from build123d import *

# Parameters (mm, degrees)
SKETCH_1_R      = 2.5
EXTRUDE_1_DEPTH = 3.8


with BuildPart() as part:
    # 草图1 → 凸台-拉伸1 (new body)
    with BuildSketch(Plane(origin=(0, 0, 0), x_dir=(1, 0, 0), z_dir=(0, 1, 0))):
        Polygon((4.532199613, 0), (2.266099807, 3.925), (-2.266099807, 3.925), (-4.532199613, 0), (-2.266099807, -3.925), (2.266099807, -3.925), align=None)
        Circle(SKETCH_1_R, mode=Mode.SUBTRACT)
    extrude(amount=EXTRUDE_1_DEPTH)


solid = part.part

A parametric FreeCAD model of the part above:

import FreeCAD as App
import Part
import Sketcher
Q = App.Units.Quantity


def add_polygon(sketch, points):
    """Adds a closed chain of lines whose ends are joined by coincident constraints."""
    first, n = sketch.GeometryCount, len(points)
    for a, b in zip(points, points[1:] + points[:1]):
        sketch.addGeometry(Part.LineSegment(App.Vector(*a, 0), App.Vector(*b, 0)), False)
    for i in range(n):
        sketch.addConstraint(Sketcher.Constraint("Coincident", first + i, 2, first + (i + 1) % n, 1))

doc = App.newDocument("Part")
params = doc.addObject("Spreadsheet::Sheet", "Params")
for row, (alias, value) in enumerate([
    ("sketch1_diameter", "5 mm"),
    ("pad1_length", "3.8 mm"),
], start=1):
    params.set(f"A{row}", alias)
    params.set(f"B{row}", "=" + value)
    params.setAlias(f"B{row}", alias)

body = doc.addObject("PartDesign::Body", "Body")

# Sketch on XZ plane
sketch1 = doc.addObject("Sketcher::SketchObject", "Sketch")
body.addObject(sketch1)
sketch1.AttachmentSupport = (doc.XZ_Plane, [""])
sketch1.MapMode = "FlatFace"
add_polygon(sketch1, [(4.5322, 0), (2.2661, -3.925), (-2.2661, -3.925), (-4.5322, 0), (-2.2661, 3.925), (2.2661, 3.925)])  # lines 0-5
sketch1.addGeometry(Part.Circle(App.Vector(0, 0, 0), App.Vector(0, 0, 1), 2.5), False)  # 6
sketch1.addConstraint(Sketcher.Constraint("Horizontal", 1))
sketch1.addConstraint(Sketcher.Constraint("Horizontal", 4))
sketch1.addConstraint(Sketcher.Constraint("Coincident", 6, 3, -1, 1))
sketch1.addConstraint(Sketcher.Constraint("Symmetric", 0, 2, 3, 2, -1, 1))
sketch1.addConstraint(Sketcher.Constraint("Symmetric", 2, 2, 5, 2, -1, 1))
sketch1.addConstraint(Sketcher.Constraint("PointOnObject", 2, 2, -1))
sketch1.addConstraint(Sketcher.Constraint("Parallel", 2, 5))
sketch1.addConstraint(Sketcher.Constraint("Vertical", 1, 2, 3, 2))
sketch1.addConstraint(Sketcher.Constraint("Diameter", 6, 5.0))
sketch1.addConstraint(Sketcher.Constraint("Angle", 0, Q("-120 deg")))
sketch1.addConstraint(Sketcher.Constraint("DistanceY", 1, 2, 3, 2, 7.85))
sketch1.addConstraint(Sketcher.Constraint("DistanceX", 1, 2, 1, 1, 4.5322))
sketch1.setExpression("Constraints[14]", "Params.sketch1_diameter")
pad1 = doc.addObject("PartDesign::Pad", "Pad")
body.addObject(pad1)
pad1.Profile = sketch1
pad1.setExpression("Length", "Params.pad1_length")
pad1.Reversed = True

doc.recompute()
